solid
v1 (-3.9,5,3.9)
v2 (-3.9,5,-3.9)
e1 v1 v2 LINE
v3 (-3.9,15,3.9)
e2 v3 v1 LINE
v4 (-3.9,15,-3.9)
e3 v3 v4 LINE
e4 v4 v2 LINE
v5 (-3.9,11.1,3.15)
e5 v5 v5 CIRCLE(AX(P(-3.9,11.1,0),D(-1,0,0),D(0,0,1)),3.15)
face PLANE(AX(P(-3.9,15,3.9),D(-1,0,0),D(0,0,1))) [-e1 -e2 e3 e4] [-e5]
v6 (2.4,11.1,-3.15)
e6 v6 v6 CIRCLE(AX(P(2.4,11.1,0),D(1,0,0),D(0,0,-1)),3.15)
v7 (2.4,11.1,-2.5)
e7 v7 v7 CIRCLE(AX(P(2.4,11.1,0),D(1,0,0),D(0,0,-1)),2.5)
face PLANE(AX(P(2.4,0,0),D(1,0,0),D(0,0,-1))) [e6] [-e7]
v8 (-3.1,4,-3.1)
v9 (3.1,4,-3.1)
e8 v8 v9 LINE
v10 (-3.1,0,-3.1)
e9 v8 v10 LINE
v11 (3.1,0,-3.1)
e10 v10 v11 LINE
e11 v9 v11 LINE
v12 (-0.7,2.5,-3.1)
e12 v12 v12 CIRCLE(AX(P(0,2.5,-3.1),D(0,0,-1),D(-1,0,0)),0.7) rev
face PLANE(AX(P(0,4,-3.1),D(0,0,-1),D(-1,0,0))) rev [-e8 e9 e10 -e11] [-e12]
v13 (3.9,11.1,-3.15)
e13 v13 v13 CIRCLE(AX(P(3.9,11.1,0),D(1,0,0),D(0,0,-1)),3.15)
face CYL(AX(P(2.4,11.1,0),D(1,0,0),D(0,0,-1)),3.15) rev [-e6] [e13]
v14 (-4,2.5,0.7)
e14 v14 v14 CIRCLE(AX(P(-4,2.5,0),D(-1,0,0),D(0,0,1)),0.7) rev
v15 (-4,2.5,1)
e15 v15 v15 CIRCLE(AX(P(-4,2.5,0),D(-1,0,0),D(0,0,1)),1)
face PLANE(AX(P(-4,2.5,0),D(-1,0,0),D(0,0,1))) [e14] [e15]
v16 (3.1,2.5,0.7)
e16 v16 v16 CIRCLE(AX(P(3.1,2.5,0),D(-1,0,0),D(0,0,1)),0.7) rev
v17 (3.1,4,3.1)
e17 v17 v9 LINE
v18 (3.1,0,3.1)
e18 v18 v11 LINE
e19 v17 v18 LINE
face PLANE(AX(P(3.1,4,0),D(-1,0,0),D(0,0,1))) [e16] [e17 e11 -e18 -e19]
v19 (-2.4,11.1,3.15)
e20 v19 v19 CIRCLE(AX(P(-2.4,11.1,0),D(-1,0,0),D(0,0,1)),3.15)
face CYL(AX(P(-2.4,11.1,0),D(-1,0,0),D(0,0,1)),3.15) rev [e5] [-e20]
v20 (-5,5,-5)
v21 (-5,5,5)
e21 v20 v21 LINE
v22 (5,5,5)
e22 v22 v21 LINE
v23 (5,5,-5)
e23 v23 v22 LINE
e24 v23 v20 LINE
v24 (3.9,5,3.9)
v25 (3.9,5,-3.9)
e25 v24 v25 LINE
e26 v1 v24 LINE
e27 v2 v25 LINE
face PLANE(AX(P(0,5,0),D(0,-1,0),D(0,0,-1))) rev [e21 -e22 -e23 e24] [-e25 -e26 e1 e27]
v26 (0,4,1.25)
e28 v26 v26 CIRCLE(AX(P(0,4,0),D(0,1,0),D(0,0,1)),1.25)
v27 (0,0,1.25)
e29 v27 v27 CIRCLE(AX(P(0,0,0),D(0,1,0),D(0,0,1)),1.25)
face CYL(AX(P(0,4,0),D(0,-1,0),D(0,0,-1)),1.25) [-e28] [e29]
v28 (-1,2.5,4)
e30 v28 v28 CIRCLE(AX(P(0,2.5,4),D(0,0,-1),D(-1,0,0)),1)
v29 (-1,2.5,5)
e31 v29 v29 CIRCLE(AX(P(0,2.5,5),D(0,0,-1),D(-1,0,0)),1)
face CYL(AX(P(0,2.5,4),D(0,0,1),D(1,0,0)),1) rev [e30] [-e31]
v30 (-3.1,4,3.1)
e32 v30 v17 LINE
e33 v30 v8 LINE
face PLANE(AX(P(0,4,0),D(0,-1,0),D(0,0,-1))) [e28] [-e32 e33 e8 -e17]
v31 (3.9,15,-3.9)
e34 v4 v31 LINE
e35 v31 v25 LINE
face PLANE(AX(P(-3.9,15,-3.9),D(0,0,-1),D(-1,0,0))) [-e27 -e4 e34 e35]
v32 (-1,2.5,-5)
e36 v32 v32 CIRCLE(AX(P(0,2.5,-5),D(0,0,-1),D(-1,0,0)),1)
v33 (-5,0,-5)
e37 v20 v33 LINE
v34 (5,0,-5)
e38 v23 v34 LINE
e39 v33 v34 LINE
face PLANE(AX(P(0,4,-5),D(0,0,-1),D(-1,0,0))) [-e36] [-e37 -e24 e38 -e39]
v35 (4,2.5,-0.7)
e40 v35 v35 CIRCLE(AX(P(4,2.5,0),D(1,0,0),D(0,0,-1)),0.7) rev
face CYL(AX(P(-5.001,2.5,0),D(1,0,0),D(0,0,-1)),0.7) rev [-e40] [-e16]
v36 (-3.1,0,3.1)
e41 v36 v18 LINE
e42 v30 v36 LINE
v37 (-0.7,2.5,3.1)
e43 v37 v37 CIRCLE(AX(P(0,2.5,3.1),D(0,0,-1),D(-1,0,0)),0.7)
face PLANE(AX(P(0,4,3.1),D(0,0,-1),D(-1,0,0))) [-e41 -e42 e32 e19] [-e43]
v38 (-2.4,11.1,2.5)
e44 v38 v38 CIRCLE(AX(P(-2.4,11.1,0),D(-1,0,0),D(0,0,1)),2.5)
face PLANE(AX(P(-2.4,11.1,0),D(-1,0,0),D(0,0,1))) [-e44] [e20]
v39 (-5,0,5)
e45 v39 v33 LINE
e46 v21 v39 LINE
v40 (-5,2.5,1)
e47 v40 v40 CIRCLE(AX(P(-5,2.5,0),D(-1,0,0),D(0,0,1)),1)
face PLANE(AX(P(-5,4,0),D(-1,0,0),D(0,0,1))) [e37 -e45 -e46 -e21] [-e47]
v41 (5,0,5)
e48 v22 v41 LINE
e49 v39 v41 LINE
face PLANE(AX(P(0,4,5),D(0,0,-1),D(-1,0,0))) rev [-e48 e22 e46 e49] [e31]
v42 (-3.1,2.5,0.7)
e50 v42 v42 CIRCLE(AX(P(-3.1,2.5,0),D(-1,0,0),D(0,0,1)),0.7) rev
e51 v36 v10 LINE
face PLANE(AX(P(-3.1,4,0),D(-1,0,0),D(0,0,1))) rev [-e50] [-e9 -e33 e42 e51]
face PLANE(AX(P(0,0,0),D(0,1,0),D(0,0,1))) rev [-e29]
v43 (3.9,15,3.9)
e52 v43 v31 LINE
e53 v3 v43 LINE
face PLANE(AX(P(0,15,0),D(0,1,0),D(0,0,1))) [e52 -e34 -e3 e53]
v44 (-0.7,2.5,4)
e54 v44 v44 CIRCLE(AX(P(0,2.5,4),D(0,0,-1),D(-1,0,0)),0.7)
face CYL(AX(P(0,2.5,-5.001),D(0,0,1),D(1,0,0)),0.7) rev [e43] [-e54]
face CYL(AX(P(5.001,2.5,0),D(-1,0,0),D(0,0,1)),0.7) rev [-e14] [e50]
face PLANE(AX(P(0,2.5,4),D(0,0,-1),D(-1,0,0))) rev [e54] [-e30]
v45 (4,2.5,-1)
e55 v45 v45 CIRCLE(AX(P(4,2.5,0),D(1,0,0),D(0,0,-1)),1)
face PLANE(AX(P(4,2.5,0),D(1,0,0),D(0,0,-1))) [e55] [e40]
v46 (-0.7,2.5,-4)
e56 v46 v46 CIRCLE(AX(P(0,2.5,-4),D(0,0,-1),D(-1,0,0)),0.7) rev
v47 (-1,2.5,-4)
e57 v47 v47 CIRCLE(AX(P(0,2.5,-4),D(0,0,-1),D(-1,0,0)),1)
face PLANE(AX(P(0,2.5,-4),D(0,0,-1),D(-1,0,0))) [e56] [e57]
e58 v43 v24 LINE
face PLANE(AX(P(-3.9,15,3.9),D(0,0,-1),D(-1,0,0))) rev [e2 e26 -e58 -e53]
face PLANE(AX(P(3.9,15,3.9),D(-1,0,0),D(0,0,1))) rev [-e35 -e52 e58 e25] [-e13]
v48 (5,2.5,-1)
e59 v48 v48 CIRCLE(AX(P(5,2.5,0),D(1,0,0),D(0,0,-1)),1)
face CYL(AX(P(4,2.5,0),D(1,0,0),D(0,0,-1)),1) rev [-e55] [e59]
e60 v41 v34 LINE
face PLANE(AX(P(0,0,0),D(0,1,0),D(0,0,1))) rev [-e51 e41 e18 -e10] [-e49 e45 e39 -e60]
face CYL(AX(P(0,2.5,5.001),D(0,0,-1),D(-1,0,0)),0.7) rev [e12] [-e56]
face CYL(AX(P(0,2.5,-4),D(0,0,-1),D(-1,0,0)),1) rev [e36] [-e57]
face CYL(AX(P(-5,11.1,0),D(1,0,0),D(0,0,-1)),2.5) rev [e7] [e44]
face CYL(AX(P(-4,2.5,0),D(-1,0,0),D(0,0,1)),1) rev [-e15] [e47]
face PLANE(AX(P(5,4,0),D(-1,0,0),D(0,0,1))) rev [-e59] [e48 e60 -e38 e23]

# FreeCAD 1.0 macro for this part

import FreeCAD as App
import Part
import Sketcher


def add_polygon(sketch, points):
    """Adds a closed chain of lines whose ends are joined by coincident constraints."""
    first, n = sketch.GeometryCount, len(points)
    for a, b in zip(points, points[1:] + points[:1]):
        sketch.addGeometry(Part.LineSegment(App.Vector(*a, 0), App.Vector(*b, 0)), False)
    for i in range(n):
        sketch.addConstraint(Sketcher.Constraint("Coincident", first + i, 2, first + (i + 1) % n, 1))

doc = App.newDocument("Part")
body = doc.addObject("PartDesign::Body", "Body")

# Sketch on XZ plane
sketch1 = body.newObject("Sketcher::SketchObject", "Sketch")
sketch1.AttachmentSupport = (doc.getObject("XZ_Plane"), [""])
sketch1.MapMode = "FlatFace"
add_polygon(sketch1, [(-5, -5), (-5, 5), (5, 5), (5, -5)])  # lines 0-3
add_polygon(sketch1, [(3, 3), (-3, 3), (-3, -3), (3, -3)])  # lines 4-7
sketch1.addConstraint(Sketcher.Constraint("Vertical", 0))
sketch1.addConstraint(Sketcher.Constraint("Horizontal", 1))
sketch1.addConstraint(Sketcher.Constraint("Vertical", 2))
sketch1.addConstraint(Sketcher.Constraint("Horizontal", 3))
sketch1.addConstraint(Sketcher.Constraint("Horizontal", 4))
sketch1.addConstraint(Sketcher.Constraint("Vertical", 5))
sketch1.addConstraint(Sketcher.Constraint("Horizontal", 6))
sketch1.addConstraint(Sketcher.Constraint("Vertical", 7))
sketch1.addConstraint(Sketcher.Constraint("Symmetric", 0, 2, 2, 2, -1, 1))
sketch1.addConstraint(Sketcher.Constraint("Symmetric", 4, 2, 6, 2, -1, 1))
sketch1.addConstraint(Sketcher.Constraint("Equal", 3, 0))
sketch1.addConstraint(Sketcher.Constraint("Equal", 6, 5))
sketch1.addConstraint(Sketcher.Constraint("DistanceX", 1, 1, 1, 2, 10.0))
sketch1.addConstraint(Sketcher.Constraint("DistanceX", 4, 2, 4, 1, 6.2))
pad1 = body.newObject("PartDesign::Pad", "Pad")
pad1.Profile = sketch1
pad1.Length = 4
pad1.Reversed = True
body2 = doc.addObject("PartDesign::Body", "Body001")

# Sketch on XZ plane
sketch2 = body2.newObject("Sketcher::SketchObject", "Sketch001")
sketch2.AttachmentSupport = (doc.getObject("XZ_Plane001"), [""])
sketch2.MapMode = "FlatFace"
sketch2.addGeometry(Part.Circle(App.Vector(0, 0, 0), App.Vector(0, 0, 1), 1.2), False)
sketch2.addConstraint(Sketcher.Constraint("Coincident", 0, 3, -1, 1))
sketch2.addConstraint(Sketcher.Constraint("Diameter", 0, 2.5))
pad2 = body2.newObject("PartDesign::Pad", "Pad001")
pad2.Profile = sketch2
pad2.Length = 4
pad2.Reversed = True
body.AllowCompound = True
doc.recompute()

boolean = body.newObject("PartDesign::Boolean", "Boolean")
boolean.Type = "Fuse"
boolean.addObjects([body2])

# Sketch on XZ plane
sketch3 = body.newObject("Sketcher::SketchObject", "Sketch002")
sketch3.AttachmentSupport = (doc.getObject("XZ_Plane"), [""])
sketch3.MapMode = "FlatFace"
sketch3.AttachmentOffset = App.Placement(App.Vector(0, 0, -4), App.Rotation())
add_polygon(sketch3, [(-5, -5), (-5, 5), (5, 5), (5, -5)])  # lines 0-3
sketch3.addConstraint(Sketcher.Constraint("Vertical", 0))
sketch3.addConstraint(Sketcher.Constraint("Horizontal", 1))
sketch3.addConstraint(Sketcher.Constraint("Vertical", 2))
sketch3.addConstraint(Sketcher.Constraint("Horizontal", 3))
sketch3.addConstraint(Sketcher.Constraint("Symmetric", 0, 2, 2, 2, -1, 1))
sketch3.addConstraint(Sketcher.Constraint("Equal", 3, 0))
sketch3.addConstraint(Sketcher.Constraint("DistanceX", 1, 1, 1, 2, 10.0))
pad3 = body.newObject("PartDesign::Pad", "Pad002")
pad3.Profile = sketch3
pad3.Length = 1
pad3.Reversed = True

# Sketch on XZ plane
sketch4 = body.newObject("Sketcher::SketchObject", "Sketch003")
sketch4.AttachmentSupport = (doc.getObject("XZ_Plane"), [""])
sketch4.MapMode = "FlatFace"
sketch4.AttachmentOffset = App.Placement(App.Vector(0, 0, -5), App.Rotation())
add_polygon(sketch4, [(-4, -4), (-4, 4), (4, 4), (4, -4)])  # lines 0-3
sketch4.addConstraint(Sketcher.Constraint("Vertical", 0))
sketch4.addConstraint(Sketcher.Constraint("Horizontal", 1))
sketch4.addConstraint(Sketcher.Constraint("Vertical", 2))
sketch4.addConstraint(Sketcher.Constraint("Horizontal", 3))
sketch4.addConstraint(Sketcher.Constraint("Symmetric", 0, 2, 2, 2, -1, 1))
sketch4.addConstraint(Sketcher.Constraint("Equal", 3, 0))
sketch4.addConstraint(Sketcher.Constraint("DistanceX", 1, 1, 1, 2, 7.8))
pad4 = body.newObject("PartDesign::Pad", "Pad003")
pad4.Profile = sketch4
pad4.Length = 10
pad4.Reversed = True

# Sketch on YZ plane
sketch5 = body.newObject("Sketcher::SketchObject", "Sketch004")
sketch5.AttachmentSupport = (doc.getObject("YZ_Plane"), [""])
sketch5.MapMode = "FlatFace"
sketch5.AttachmentOffset = App.Placement(App.Vector(0, 0, 3.9), App.Rotation())
sketch5.addGeometry(Part.Circle(App.Vector(11.1, 0, 0), App.Vector(0, 0, 1), 2.5), False)
sketch5.addConstraint(Sketcher.Constraint("PointOnObject", 0, 3, -1))
sketch5.addConstraint(Sketcher.Constraint("Diameter", 0, 5.0))
sketch5.addConstraint(Sketcher.Constraint("DistanceX", -1, 1, 0, 3, 11.1))
pocket1 = body.newObject("PartDesign::Pocket", "Pocket")
pocket1.Profile = sketch5
pocket1.Type = "ThroughAll"

# Sketch on YZ plane
sketch6 = body.newObject("Sketcher::SketchObject", "Sketch005")
sketch6.AttachmentSupport = (doc.getObject("YZ_Plane"), [""])
sketch6.MapMode = "FlatFace"
sketch6.AttachmentOffset = App.Placement(App.Vector(0, 0, 3.9), App.Rotation())
sketch6.addGeometry(Part.Circle(App.Vector(11.1, 0, 0), App.Vector(0, 0, 1), 3.1), False)
sketch6.addGeometry(Part.Circle(App.Vector(11.1, 0, 0), App.Vector(0, 0, 1), 2.5), False)
sketch6.addConstraint(Sketcher.Constraint("Coincident", 1, 3, 0, 3))
sketch6.addConstraint(Sketcher.Constraint("PointOnObject", 0, 3, -1))
sketch6.addConstraint(Sketcher.Constraint("Diameter", 1, 5.0))
sketch6.addConstraint(Sketcher.Constraint("Diameter", 0, 6.3))
sketch6.addConstraint(Sketcher.Constraint("DistanceX", -1, 1, 0, 3, 11.1))
pocket2 = body.newObject("PartDesign::Pocket", "Pocket001")
pocket2.Profile = sketch6
pocket2.Length = 1.5

# Sketch on YZ plane
sketch7 = body.newObject("Sketcher::SketchObject", "Sketch006")
sketch7.AttachmentSupport = (doc.getObject("YZ_Plane"), [""])
sketch7.MapMode = "FlatFace"
sketch7.AttachmentOffset = App.Placement(App.Vector(0, 0, -2.4), App.Rotation())
sketch7.addGeometry(Part.Circle(App.Vector(11.1, 0, 0), App.Vector(0, 0, 1), 3.1), False)
sketch7.addGeometry(Part.Circle(App.Vector(11.1, 0, 0), App.Vector(0, 0, 1), 2.5), False)
sketch7.addConstraint(Sketcher.Constraint("Coincident", 1, 3, 0, 3))
sketch7.addConstraint(Sketcher.Constraint("PointOnObject", 0, 3, -1))
sketch7.addConstraint(Sketcher.Constraint("Diameter", 1, 5.0))
sketch7.addConstraint(Sketcher.Constraint("Diameter", 0, 6.3))
sketch7.addConstraint(Sketcher.Constraint("DistanceX", -1, 1, 0, 3, 11.1))
pocket3 = body.newObject("PartDesign::Pocket", "Pocket002")
pocket3.Profile = sketch7
pocket3.Length = 1.5

# Sketch on YZ plane
sketch8 = body.newObject("Sketcher::SketchObject", "Sketch007")
sketch8.AttachmentSupport = (doc.getObject("YZ_Plane"), [""])
sketch8.MapMode = "FlatFace"
sketch8.AttachmentOffset = App.Placement(App.Vector(0, 0, 5), App.Rotation())
sketch8.addGeometry(Part.Circle(App.Vector(2.5, 0, 0), App.Vector(0, 0, 1), 1), False)
sketch8.addGeometry(Part.Circle(App.Vector(2.5, 0, 0), App.Vector(0, 0, 1), 0.7), False)
sketch8.addConstraint(Sketcher.Constraint("Coincident", 1, 3, 0, 3))
sketch8.addConstraint(Sketcher.Constraint("PointOnObject", 0, 3, -1))
sketch8.addConstraint(Sketcher.Constraint("Diameter", 0, 2.0))
sketch8.addConstraint(Sketcher.Constraint("Diameter", 1, 1.4))
sketch8.addConstraint(Sketcher.Constraint("DistanceX", -1, 1, 0, 3, 2.5))
pocket4 = body.newObject("PartDesign::Pocket", "Pocket003")
pocket4.Profile = sketch8
pocket4.Length = 1

# Sketch on YZ plane
sketch9 = body.newObject("Sketcher::SketchObject", "Sketch008")
sketch9.AttachmentSupport = (doc.getObject("YZ_Plane"), [""])
sketch9.MapMode = "FlatFace"
sketch9.AttachmentOffset = App.Placement(App.Vector(0, 0, -4), App.Rotation())
sketch9.addGeometry(Part.Circle(App.Vector(2.5, 0, 0), App.Vector(0, 0, 1), 1), False)
sketch9.addGeometry(Part.Circle(App.Vector(2.5, 0, 0), App.Vector(0, 0, 1), 0.7), False)
sketch9.addConstraint(Sketcher.Constraint("Coincident", 1, 3, 0, 3))
sketch9.addConstraint(Sketcher.Constraint("PointOnObject", 0, 3, -1))
sketch9.addConstraint(Sketcher.Constraint("Diameter", 0, 2.0))
sketch9.addConstraint(Sketcher.Constraint("Diameter", 1, 1.4))
sketch9.addConstraint(Sketcher.Constraint("DistanceX", -1, 1, 0, 3, 2.5))
pocket5 = body.newObject("PartDesign::Pocket", "Pocket004")
pocket5.Profile = sketch9
pocket5.Length = 1

# Sketch on YZ plane
sketch10 = body.newObject("Sketcher::SketchObject", "Sketch009")
sketch10.AttachmentSupport = (doc.getObject("YZ_Plane"), [""])
sketch10.MapMode = "FlatFace"
sketch10.AttachmentOffset = App.Placement(App.Vector(0, 0, 5), App.Rotation())
sketch10.addGeometry(Part.Circle(App.Vector(2.5, 0, 0), App.Vector(0, 0, 1), 0.7), False)
sketch10.addConstraint(Sketcher.Constraint("PointOnObject", 0, 3, -1))
sketch10.addConstraint(Sketcher.Constraint("Diameter", 0, 1.4))
sketch10.addConstraint(Sketcher.Constraint("DistanceX", -1, 1, 0, 3, 2.5))
pocket6 = body.newObject("PartDesign::Pocket", "Pocket005")
pocket6.Profile = sketch10
pocket6.Type = "UpToFirst"

# Sketch on YZ plane
sketch11 = body.newObject("Sketcher::SketchObject", "Sketch010")
sketch11.AttachmentSupport = (doc.getObject("YZ_Plane"), [""])
sketch11.MapMode = "FlatFace"
sketch11.AttachmentOffset = App.Placement(App.Vector(0, 0, -5), App.Rotation())
sketch11.addGeometry(Part.Circle(App.Vector(2.5, 0, 0), App.Vector(0, 0, 1), 0.7), False)
sketch11.addConstraint(Sketcher.Constraint("PointOnObject", 0, 3, -1))
sketch11.addConstraint(Sketcher.Constraint("Diameter", 0, 1.4))
sketch11.addConstraint(Sketcher.Constraint("DistanceX", -1, 1, 0, 3, 2.5))
pocket7 = body.newObject("PartDesign::Pocket", "Pocket006")
pocket7.Profile = sketch11
pocket7.Length = 1.9
pocket7.Reversed = True

# Sketch on XY plane
sketch12 = body.newObject("Sketcher::SketchObject", "Sketch011")
sketch12.AttachmentSupport = (doc.getObject("XY_Plane"), [""])
sketch12.MapMode = "FlatFace"
sketch12.AttachmentOffset = App.Placement(App.Vector(0, 0, -5), App.Rotation())
sketch12.addGeometry(Part.Circle(App.Vector(0, 2.5, 0), App.Vector(0, 0, 1), 0.7), False)
sketch12.addConstraint(Sketcher.Constraint("PointOnObject", 0, 3, -2))
sketch12.addConstraint(Sketcher.Constraint("Diameter", 0, 1.4))
sketch12.addConstraint(Sketcher.Constraint("DistanceY", -1, 1, 0, 3, 2.5))
pocket8 = body.newObject("PartDesign::Pocket", "Pocket007")
pocket8.Profile = sketch12
pocket8.Type = "UpToFirst"
pocket8.Reversed = True

# Sketch on XY plane
sketch13 = body.newObject("Sketcher::SketchObject", "Sketch012")
sketch13.AttachmentSupport = (doc.getObject("XY_Plane"), [""])
sketch13.MapMode = "FlatFace"
sketch13.AttachmentOffset = App.Placement(App.Vector(0, 0, 5), App.Rotation())
sketch13.addGeometry(Part.Circle(App.Vector(0, 2.5, 0), App.Vector(0, 0, 1), 0.7), False)
sketch13.addConstraint(Sketcher.Constraint("PointOnObject", 0, 3, -2))
sketch13.addConstraint(Sketcher.Constraint("Diameter", 0, 1.4))
sketch13.addConstraint(Sketcher.Constraint("DistanceY", -1, 1, 0, 3, 2.5))
pocket9 = body.newObject("PartDesign::Pocket", "Pocket008")
pocket9.Profile = sketch13
pocket9.Length = 1.9

# Sketch on XY plane
sketch14 = body.newObject("Sketcher::SketchObject", "Sketch013")
sketch14.AttachmentSupport = (doc.getObject("XY_Plane"), [""])
sketch14.MapMode = "FlatFace"
sketch14.AttachmentOffset = App.Placement(App.Vector(0, 0, -5), App.Rotation())
sketch14.addGeometry(Part.Circle(App.Vector(0, 2.5, 0), App.Vector(0, 0, 1), 1), False)
sketch14.addConstraint(Sketcher.Constraint("PointOnObject", 0, 3, -2))
sketch14.addConstraint(Sketcher.Constraint("Diameter", 0, 2.0))
sketch14.addConstraint(Sketcher.Constraint("DistanceY", -1, 1, 0, 3, 2.5))
pocket10 = body.newObject("PartDesign::Pocket", "Pocket009")
pocket10.Profile = sketch14
pocket10.Length = 1
pocket10.Reversed = True

# Sketch on XY plane
sketch15 = body.newObject("Sketcher::SketchObject", "Sketch014")
sketch15.AttachmentSupport = (doc.getObject("XY_Plane"), [""])
sketch15.MapMode = "FlatFace"
sketch15.AttachmentOffset = App.Placement(App.Vector(0, 0, 4), App.Rotation())
sketch15.addGeometry(Part.Circle(App.Vector(0, 2.5, 0), App.Vector(0, 0, 1), 1), False)
sketch15.addConstraint(Sketcher.Constraint("PointOnObject", 0, 3, -2))
sketch15.addConstraint(Sketcher.Constraint("Diameter", 0, 2.0))
sketch15.addConstraint(Sketcher.Constraint("DistanceY", -1, 1, 0, 3, 2.5))
pocket11 = body.newObject("PartDesign::Pocket", "Pocket010")
pocket11.Profile = sketch15
pocket11.Length = 1
pocket11.Reversed = True

doc.recompute()
